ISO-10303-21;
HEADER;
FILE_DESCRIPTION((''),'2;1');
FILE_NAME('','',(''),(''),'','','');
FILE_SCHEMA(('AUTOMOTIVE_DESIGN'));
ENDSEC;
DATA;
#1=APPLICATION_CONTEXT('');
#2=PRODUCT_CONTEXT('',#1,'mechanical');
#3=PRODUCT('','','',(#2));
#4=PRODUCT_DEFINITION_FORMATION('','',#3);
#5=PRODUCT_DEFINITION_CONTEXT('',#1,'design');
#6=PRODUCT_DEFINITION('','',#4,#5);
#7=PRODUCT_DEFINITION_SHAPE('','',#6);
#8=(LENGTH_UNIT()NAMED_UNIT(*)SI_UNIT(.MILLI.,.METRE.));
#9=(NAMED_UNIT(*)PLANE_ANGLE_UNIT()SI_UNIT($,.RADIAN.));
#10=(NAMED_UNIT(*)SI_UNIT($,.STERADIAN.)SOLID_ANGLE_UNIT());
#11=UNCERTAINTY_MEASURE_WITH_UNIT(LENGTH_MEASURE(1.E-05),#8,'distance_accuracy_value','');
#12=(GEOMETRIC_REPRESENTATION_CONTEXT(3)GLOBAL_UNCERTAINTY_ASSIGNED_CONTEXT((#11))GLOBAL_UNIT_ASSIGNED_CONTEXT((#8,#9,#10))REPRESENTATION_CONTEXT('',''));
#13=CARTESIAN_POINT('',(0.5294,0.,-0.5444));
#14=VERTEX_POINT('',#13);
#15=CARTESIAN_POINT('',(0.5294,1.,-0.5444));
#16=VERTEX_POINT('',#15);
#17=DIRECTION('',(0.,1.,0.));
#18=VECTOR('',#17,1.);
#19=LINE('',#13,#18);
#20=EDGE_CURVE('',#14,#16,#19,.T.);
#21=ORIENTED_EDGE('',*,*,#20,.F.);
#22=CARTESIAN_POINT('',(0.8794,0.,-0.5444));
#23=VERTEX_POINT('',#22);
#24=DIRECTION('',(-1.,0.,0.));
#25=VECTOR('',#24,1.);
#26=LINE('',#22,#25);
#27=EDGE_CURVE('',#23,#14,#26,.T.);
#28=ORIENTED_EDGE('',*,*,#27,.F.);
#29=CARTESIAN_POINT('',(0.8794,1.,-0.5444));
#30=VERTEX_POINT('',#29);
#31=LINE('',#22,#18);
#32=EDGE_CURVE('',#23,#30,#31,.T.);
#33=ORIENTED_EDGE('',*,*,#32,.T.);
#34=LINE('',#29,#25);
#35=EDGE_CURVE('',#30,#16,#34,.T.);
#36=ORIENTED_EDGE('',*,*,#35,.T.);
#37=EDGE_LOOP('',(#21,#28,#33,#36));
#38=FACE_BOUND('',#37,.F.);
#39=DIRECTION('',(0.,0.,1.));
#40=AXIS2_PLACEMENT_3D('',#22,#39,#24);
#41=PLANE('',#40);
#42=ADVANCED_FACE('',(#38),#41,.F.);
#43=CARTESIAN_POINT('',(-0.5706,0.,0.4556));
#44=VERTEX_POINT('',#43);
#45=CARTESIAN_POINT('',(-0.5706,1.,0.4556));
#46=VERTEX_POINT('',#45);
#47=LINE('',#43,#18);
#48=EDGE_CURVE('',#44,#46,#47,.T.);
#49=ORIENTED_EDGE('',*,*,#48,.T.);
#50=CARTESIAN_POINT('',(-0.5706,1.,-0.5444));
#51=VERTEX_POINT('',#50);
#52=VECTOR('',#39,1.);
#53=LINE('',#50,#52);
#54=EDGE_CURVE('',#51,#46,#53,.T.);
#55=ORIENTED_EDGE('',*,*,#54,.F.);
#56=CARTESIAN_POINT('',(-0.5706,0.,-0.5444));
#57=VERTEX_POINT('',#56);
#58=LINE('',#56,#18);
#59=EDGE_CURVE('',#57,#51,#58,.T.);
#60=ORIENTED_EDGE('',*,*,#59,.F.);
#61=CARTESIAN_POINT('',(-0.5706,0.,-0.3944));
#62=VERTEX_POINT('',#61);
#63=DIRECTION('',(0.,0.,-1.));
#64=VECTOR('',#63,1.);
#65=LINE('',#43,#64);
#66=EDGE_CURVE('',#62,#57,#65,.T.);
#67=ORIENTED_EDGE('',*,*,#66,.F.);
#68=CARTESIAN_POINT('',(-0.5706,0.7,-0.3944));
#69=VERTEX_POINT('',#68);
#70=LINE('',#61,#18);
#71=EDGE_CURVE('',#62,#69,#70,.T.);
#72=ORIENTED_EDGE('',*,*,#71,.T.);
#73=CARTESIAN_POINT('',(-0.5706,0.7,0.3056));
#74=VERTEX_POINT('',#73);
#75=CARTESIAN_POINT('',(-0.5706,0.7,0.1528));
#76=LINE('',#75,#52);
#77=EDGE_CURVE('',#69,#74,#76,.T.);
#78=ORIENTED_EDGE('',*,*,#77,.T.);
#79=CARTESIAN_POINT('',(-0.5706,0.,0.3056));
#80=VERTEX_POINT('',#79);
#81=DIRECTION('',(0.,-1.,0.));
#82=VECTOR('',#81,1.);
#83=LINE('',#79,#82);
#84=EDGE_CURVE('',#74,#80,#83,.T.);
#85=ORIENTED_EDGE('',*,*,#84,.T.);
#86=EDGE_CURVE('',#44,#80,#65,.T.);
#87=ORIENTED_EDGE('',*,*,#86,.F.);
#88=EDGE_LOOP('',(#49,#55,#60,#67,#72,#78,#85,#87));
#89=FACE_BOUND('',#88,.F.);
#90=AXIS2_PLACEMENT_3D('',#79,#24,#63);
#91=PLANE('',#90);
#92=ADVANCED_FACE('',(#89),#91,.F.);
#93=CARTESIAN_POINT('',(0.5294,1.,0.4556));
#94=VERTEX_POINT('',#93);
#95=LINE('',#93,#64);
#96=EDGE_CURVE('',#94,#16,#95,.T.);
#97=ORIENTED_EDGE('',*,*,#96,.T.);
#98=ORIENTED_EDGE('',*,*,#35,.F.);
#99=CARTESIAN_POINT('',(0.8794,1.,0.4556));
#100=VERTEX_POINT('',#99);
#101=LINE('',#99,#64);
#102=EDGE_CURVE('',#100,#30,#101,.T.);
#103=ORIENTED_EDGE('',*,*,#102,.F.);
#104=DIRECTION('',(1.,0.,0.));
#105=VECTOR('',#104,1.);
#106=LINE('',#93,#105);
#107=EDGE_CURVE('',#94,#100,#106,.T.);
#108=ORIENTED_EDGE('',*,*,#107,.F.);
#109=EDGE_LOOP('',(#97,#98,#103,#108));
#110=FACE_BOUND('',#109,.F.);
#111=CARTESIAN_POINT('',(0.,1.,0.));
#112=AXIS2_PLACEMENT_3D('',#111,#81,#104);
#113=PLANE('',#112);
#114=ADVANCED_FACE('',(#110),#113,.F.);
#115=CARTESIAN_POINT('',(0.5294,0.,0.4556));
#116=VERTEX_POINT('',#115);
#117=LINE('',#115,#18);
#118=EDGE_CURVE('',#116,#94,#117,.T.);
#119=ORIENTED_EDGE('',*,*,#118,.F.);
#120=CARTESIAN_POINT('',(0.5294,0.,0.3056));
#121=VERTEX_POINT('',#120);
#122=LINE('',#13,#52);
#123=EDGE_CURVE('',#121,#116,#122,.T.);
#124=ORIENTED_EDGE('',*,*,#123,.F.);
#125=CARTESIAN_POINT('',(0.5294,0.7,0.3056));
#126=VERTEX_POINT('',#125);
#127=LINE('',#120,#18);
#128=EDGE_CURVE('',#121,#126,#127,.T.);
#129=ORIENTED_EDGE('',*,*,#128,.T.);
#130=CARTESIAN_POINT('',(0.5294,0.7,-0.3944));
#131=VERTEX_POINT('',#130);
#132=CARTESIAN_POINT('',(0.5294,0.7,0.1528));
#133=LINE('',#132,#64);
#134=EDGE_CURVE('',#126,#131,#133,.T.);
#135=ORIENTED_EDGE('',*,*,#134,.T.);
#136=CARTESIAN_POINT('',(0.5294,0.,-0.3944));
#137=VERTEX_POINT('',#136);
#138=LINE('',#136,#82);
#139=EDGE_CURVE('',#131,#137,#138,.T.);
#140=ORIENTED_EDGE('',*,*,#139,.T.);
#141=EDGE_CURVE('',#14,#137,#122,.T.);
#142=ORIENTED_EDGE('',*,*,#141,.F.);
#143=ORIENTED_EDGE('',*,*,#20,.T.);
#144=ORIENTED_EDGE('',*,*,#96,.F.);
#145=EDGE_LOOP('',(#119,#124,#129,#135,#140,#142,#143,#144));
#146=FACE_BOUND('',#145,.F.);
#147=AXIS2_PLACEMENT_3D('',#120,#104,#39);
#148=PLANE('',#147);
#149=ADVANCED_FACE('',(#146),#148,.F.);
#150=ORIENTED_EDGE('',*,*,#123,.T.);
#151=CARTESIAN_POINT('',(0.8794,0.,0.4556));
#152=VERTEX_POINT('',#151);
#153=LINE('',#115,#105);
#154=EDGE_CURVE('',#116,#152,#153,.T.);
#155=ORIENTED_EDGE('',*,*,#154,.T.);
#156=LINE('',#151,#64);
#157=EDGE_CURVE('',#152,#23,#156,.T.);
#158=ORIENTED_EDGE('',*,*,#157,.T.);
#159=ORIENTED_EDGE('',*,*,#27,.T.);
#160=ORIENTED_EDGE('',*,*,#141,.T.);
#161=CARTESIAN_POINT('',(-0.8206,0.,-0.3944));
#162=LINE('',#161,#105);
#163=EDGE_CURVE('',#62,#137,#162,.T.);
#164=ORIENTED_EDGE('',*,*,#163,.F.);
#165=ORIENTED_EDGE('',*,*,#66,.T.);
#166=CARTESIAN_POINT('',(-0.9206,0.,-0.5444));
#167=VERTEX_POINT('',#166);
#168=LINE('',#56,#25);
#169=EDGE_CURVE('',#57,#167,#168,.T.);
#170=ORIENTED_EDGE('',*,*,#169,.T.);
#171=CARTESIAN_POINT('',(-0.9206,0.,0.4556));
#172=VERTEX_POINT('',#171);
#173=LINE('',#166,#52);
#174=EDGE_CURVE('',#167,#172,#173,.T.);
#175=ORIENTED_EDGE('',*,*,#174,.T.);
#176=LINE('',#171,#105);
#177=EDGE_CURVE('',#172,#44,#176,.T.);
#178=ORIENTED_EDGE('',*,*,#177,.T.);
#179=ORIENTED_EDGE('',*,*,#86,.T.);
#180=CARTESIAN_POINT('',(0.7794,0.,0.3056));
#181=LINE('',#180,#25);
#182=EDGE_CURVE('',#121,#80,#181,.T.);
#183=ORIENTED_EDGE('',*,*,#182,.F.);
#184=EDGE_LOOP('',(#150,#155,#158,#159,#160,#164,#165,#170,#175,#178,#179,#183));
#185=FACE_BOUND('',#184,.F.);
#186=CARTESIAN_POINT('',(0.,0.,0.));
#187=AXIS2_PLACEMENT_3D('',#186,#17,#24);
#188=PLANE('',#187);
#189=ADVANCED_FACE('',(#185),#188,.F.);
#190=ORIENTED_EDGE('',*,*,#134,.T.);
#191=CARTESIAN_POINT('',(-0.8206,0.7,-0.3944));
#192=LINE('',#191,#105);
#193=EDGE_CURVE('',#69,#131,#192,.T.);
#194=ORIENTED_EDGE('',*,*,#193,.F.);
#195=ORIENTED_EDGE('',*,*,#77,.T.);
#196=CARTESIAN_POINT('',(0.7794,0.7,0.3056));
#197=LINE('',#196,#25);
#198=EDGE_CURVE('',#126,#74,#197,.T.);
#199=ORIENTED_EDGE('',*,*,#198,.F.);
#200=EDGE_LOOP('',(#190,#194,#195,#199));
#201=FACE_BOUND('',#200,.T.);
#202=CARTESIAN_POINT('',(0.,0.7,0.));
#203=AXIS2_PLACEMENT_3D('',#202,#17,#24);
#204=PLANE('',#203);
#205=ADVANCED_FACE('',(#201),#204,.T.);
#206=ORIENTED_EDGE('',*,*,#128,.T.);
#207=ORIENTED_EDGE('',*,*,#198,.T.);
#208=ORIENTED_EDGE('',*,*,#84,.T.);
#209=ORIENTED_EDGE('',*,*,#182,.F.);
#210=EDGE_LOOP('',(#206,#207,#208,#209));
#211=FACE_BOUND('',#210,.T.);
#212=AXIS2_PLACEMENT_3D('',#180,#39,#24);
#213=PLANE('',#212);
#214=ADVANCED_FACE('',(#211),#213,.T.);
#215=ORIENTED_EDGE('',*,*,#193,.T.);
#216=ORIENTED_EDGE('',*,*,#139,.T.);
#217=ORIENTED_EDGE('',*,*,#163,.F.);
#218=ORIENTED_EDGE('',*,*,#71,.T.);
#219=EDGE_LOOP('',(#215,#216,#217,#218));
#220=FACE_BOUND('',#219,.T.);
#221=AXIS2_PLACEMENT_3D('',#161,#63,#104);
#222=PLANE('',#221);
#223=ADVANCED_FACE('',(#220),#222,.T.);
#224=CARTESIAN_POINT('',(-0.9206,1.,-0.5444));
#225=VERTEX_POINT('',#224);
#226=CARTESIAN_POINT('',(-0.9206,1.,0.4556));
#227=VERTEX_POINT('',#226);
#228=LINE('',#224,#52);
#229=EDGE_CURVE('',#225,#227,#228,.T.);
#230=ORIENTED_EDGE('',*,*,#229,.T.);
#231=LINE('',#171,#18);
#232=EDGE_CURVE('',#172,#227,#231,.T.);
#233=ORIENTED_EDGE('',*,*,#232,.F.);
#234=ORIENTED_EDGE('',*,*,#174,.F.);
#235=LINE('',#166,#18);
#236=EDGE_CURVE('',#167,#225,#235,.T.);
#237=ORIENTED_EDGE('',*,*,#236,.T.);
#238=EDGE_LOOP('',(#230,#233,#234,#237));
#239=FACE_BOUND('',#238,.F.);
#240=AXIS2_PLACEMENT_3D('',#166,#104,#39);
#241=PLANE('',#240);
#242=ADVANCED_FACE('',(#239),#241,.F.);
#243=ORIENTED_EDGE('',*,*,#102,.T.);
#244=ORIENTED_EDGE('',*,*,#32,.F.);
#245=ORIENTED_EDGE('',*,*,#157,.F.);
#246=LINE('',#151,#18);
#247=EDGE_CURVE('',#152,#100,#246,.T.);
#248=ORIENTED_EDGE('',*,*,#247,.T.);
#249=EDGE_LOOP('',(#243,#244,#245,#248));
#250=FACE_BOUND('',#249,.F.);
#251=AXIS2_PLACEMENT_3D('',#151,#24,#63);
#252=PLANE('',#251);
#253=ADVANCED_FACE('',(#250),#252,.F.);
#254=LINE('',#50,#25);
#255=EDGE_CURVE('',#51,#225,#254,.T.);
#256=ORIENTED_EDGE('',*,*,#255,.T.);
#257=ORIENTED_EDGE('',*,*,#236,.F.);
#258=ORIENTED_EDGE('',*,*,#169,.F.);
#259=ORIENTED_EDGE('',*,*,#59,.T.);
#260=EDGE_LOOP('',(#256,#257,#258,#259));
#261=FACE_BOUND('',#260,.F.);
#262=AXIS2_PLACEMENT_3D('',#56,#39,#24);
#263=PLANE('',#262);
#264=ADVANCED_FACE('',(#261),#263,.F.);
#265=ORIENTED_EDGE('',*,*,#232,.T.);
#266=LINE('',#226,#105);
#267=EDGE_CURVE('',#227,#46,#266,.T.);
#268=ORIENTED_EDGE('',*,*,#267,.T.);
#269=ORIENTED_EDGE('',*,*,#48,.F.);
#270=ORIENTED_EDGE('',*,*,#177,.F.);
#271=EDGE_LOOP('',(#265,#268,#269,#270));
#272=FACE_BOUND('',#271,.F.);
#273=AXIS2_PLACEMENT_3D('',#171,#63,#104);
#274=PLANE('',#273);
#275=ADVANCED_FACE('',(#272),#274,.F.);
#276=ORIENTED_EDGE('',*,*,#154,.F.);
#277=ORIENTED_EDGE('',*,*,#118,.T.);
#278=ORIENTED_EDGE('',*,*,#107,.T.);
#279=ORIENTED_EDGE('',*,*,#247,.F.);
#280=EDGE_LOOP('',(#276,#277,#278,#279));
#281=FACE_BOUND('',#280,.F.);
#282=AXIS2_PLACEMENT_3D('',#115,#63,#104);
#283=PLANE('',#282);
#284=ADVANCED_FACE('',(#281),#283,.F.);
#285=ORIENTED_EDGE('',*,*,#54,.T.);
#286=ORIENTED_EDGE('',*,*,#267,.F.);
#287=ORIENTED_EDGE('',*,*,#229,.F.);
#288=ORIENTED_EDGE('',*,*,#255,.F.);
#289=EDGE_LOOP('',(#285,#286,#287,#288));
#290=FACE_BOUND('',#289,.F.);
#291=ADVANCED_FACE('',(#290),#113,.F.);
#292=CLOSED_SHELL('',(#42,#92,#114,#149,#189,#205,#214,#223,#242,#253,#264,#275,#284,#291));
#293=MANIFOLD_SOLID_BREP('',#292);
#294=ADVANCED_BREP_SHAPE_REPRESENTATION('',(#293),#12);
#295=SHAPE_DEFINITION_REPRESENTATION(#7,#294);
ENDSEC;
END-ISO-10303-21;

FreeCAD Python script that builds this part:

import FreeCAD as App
import Part
import Sketcher
from FreeCAD import Vector
Q = App.Units.Quantity


def add_polygon(sketch, points):
    """Adds a closed chain of lines whose ends are joined by coincident constraints."""
    first, n = sketch.GeometryCount, len(points)
    for a, b in zip(points, points[1:] + points[:1]):
        sketch.addGeometry(Part.LineSegment(App.Vector(*a, 0), App.Vector(*b, 0)), False)
    for i in range(n):
        sketch.addConstraint(Sketcher.Constraint("Coincident", first + i, 2, first + (i + 1) % n, 1))

doc = App.newDocument("Part")
body = doc.addObject("PartDesign::Body", "Body")

# Sketch on XZ plane
sketch1 = body.newObject("Sketcher::SketchObject", "Sketch")
sketch1.AttachmentSupport = (doc.getObject("XZ_Plane"), [""])
sketch1.MapMode = "FlatFace"
add_polygon(sketch1, [(-0.8, 0.3), (0.8, 0.3), (0.8, -0.4), (-0.8, -0.4)])  # lines 0-3
sketch1.addConstraint([
    Sketcher.Constraint("Horizontal", 0),
    Sketcher.Constraint("Vertical", 1),
    Sketcher.Constraint("Horizontal", 2),
    Sketcher.Constraint("Vertical", 3),
    Sketcher.Constraint("DistanceX", 0, 1, 0, 2, Q("1.6 mm")),
    Sketcher.Constraint("DistanceY", 1, 2, 1, 1, Q("0.7 mm")),
    Sketcher.Constraint("DistanceX", -1, 1, 0, 2, Q("0.7794 mm")),
    Sketcher.Constraint("DistanceY", -1, 1, 0, 2, Q("0.3056 mm")),
])
pad1 = body.newObject("PartDesign::Pad", "Pad")
pad1.Profile = sketch1
pad1.Length = 0.7
pad1.Reversed = True

# Sketch on XZ plane
sketch2 = body.newObject("Sketcher::SketchObject", "Sketch001")
sketch2.AttachmentSupport = (doc.getObject("XZ_Plane"), [""])
sketch2.MapMode = "FlatFace"
add_polygon(sketch2, [(-0.57, -0.54), (-0.57, 0.46), (-0.92, 0.46), (-0.92, -0.54)])  # lines 0-3
add_polygon(sketch2, [(0.53, 0.46), (0.53, -0.54), (0.88, -0.54), (0.88, 0.46)])  # lines 4-7
sketch2.addConstraint([
    Sketcher.Constraint("Vertical", 0),
    Sketcher.Constraint("Horizontal", 1),
    Sketcher.Constraint("Vertical", 2),
    Sketcher.Constraint("Horizontal", 3),
    Sketcher.Constraint("Vertical", 4),
    Sketcher.Constraint("Horizontal", 5),
    Sketcher.Constraint("Vertical", 6),
    Sketcher.Constraint("Horizontal", 7),
    Sketcher.Constraint("Horizontal", 3, 2, 4, 2),
    Sketcher.Constraint("Horizontal", 1, 2, 6, 2),
    Sketcher.Constraint("Equal", 3, 5),
    Sketcher.Constraint("DistanceY", 0, 1, 0, 2, Q("1 mm")),
    Sketcher.Constraint("DistanceX", 1, 2, 1, 1, Q("0.35 mm")),
    Sketcher.Constraint("DistanceX", 2, 2, 5, 2, Q("1.8 mm")),
    Sketcher.Constraint("DistanceX", 0, 2, -1, 1, Q("0.5706 mm")),
    Sketcher.Constraint("DistanceY", -1, 1, 0, 2, Q("0.4556 mm")),
])
pad2 = body.newObject("PartDesign::Pad", "Pad001")
pad2.Profile = sketch2
pad2.Length = 1
pad2.Reversed = True

doc.recompute()
